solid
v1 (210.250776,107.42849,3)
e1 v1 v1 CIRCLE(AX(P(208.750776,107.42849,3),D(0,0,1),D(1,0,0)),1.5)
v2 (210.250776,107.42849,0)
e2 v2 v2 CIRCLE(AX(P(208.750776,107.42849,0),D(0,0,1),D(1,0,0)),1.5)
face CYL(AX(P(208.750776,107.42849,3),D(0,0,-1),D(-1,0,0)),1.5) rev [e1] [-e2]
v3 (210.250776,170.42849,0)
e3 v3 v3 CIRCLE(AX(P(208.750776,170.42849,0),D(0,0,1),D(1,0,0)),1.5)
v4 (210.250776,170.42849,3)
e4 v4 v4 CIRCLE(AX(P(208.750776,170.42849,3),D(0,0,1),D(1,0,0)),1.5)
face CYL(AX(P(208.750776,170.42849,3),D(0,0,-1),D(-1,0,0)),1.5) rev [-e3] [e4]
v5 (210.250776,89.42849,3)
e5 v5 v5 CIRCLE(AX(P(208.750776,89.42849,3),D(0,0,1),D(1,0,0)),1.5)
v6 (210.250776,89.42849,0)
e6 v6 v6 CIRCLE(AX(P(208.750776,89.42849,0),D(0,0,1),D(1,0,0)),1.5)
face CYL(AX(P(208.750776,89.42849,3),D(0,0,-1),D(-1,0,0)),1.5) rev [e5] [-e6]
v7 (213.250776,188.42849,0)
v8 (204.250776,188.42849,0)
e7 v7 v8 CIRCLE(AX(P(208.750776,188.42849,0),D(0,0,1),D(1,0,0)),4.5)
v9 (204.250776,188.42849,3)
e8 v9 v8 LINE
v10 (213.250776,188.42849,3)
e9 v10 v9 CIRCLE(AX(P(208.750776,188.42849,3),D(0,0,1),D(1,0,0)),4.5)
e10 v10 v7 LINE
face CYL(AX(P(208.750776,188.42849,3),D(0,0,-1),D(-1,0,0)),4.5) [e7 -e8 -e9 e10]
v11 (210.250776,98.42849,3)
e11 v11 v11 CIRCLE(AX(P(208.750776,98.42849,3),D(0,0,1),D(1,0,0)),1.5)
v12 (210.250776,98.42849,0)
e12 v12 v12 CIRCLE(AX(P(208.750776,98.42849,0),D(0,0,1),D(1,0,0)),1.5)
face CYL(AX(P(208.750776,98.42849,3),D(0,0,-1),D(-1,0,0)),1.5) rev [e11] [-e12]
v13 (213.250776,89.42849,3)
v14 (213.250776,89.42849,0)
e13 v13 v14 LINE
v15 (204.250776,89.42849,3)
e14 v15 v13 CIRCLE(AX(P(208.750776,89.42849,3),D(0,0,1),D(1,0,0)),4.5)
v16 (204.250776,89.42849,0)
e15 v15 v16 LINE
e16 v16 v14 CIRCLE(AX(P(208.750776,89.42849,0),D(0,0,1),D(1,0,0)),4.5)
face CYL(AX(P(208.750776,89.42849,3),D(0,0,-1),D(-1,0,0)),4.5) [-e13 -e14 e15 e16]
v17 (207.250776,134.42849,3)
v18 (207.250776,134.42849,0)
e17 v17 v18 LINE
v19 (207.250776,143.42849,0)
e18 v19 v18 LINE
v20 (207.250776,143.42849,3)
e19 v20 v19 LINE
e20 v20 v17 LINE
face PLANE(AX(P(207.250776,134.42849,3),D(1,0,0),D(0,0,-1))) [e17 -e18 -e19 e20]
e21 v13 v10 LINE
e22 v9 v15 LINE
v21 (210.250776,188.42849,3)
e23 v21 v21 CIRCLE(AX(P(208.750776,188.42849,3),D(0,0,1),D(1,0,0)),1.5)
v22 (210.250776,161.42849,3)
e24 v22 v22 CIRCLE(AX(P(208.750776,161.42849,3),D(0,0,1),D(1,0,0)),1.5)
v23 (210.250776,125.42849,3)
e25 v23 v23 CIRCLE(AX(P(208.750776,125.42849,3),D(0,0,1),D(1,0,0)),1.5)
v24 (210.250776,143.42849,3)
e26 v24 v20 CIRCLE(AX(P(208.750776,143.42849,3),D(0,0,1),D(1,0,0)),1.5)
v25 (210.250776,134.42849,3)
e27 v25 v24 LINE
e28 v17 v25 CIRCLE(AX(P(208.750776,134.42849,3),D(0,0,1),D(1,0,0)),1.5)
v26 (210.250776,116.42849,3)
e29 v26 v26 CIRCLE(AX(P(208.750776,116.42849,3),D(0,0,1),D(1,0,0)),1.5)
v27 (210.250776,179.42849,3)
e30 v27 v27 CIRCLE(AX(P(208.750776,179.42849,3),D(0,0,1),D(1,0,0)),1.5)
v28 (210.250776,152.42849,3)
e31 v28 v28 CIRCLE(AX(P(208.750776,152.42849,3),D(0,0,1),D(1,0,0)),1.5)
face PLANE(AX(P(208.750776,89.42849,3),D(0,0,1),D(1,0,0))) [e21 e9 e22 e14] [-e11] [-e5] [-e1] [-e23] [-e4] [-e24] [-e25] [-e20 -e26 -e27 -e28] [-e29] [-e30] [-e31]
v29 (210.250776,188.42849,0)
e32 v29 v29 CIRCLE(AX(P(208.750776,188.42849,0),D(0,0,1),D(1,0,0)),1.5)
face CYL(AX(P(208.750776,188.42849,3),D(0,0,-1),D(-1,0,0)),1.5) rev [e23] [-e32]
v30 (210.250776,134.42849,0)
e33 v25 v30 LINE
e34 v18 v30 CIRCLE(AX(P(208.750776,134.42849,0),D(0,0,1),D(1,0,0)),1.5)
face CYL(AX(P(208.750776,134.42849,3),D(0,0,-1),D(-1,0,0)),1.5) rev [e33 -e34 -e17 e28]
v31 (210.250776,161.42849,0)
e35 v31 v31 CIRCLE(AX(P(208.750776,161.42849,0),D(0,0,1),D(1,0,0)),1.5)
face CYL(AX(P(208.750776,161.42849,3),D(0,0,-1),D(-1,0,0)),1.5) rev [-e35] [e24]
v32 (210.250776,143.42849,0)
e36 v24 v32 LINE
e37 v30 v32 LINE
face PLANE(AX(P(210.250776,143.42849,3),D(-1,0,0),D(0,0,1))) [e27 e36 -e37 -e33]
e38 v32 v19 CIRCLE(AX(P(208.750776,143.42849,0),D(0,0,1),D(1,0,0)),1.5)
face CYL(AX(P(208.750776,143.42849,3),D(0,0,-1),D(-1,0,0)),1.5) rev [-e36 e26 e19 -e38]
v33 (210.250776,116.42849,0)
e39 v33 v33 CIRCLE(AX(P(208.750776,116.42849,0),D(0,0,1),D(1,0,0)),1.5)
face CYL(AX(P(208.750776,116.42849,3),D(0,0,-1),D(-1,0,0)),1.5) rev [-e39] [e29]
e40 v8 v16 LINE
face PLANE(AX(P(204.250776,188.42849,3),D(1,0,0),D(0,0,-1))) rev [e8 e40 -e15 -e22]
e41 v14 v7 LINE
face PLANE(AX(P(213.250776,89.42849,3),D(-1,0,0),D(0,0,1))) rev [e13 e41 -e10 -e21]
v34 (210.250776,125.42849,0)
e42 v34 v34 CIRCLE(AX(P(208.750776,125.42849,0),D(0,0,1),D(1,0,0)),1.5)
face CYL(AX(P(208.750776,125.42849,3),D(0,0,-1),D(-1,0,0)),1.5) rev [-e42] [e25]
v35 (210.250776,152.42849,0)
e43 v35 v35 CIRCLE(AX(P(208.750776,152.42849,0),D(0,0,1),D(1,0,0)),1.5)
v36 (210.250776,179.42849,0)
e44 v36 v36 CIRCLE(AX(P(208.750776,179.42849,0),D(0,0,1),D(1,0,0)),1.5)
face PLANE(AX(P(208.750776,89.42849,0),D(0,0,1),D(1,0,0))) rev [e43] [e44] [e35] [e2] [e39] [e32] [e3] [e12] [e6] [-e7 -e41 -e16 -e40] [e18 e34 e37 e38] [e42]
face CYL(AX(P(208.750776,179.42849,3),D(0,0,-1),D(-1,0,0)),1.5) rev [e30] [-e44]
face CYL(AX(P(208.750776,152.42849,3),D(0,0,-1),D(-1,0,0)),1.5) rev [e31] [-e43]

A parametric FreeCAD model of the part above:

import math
import FreeCAD as App
import Part
import Sketcher
from FreeCAD import Vector
Q = App.Units.Quantity

doc = App.newDocument("Part")
body = doc.addObject("PartDesign::Body", "Body")

sketch1 = body.newObject("Sketcher::SketchObject", "Sketch")
sketch1.AttachmentSupport = (doc.getObject("XY_Plane"), [""])
sketch1.MapMode = "FlatFace"
sketch1.addGeometry(Part.LineSegment(Vector(213.3, 89.4, 0), Vector(213.3, 188.4, 0)), False)
sketch1.addGeometry(Part.ArcOfCircle(Part.Circle(Vector(208.8, 188.4, 0), Vector(0, 0, 1), 4.5), math.radians(0), math.radians(180)), False)
sketch1.addGeometry(Part.LineSegment(Vector(204.3, 188.4, 0), Vector(204.3, 89.4, 0)), False)
sketch1.addGeometry(Part.ArcOfCircle(Part.Circle(Vector(208.8, 89.4, 0), Vector(0, 0, 1), 4.5), math.radians(180), math.radians(360)), False)
sketch1.addGeometry(Part.Circle(Vector(208.8, 89.4, 0), Vector(0, 0, 1), 1.5), False)
sketch1.addGeometry(Part.Circle(Vector(208.8, 98.4, 0), Vector(0, 0, 1), 1.5), False)
sketch1.addGeometry(Part.Circle(Vector(208.8, 107.4, 0), Vector(0, 0, 1), 1.5), False)
sketch1.addGeometry(Part.Circle(Vector(208.8, 116.4, 0), Vector(0, 0, 1), 1.5), False)
sketch1.addGeometry(Part.Circle(Vector(208.8, 125.4, 0), Vector(0, 0, 1), 1.5), False)
sketch1.addGeometry(Part.ArcOfCircle(Part.Circle(Vector(208.8, 134.4, 0), Vector(0, 0, 1), 1.5), math.radians(180), math.radians(360)), False)
sketch1.addGeometry(Part.LineSegment(Vector(207.3, 134.4, 0), Vector(207.3, 143.4, 0)), False)
sketch1.addGeometry(Part.ArcOfCircle(Part.Circle(Vector(208.8, 143.4, 0), Vector(0, 0, 1), 1.5), math.radians(0), math.radians(180)), False)
sketch1.addGeometry(Part.LineSegment(Vector(210.3, 143.4, 0), Vector(210.3, 134.4, 0)), False)
sketch1.addGeometry(Part.Circle(Vector(208.8, 152.4, 0), Vector(0, 0, 1), 1.5), False)
sketch1.addGeometry(Part.Circle(Vector(208.8, 161.4, 0), Vector(0, 0, 1), 1.5), False)
sketch1.addGeometry(Part.Circle(Vector(208.8, 170.4, 0), Vector(0, 0, 1), 1.5), False)
sketch1.addGeometry(Part.Circle(Vector(208.8, 179.4, 0), Vector(0, 0, 1), 1.5), False)
sketch1.addGeometry(Part.Circle(Vector(208.8, 188.4, 0), Vector(0, 0, 1), 1.5), False)
sketch1.addConstraint(Sketcher.Constraint("Tangent", 0, 2, 1, 1))
sketch1.addConstraint(Sketcher.Constraint("Tangent", 1, 2, 2, 1))
sketch1.addConstraint(Sketcher.Constraint("Tangent", 2, 2, 3, 1))
sketch1.addConstraint(Sketcher.Constraint("Tangent", 3, 2, 0, 1))
sketch1.addConstraint(Sketcher.Constraint("Tangent", 9, 1, 10, 1))
sketch1.addConstraint(Sketcher.Constraint("Tangent", 10, 2, 11, 2))
sketch1.addConstraint(Sketcher.Constraint("Tangent", 11, 1, 12, 1))
sketch1.addConstraint(Sketcher.Constraint("Tangent", 12, 2, 9, 2))
sketch1.addConstraint(Sketcher.Constraint("Vertical", 0))
sketch1.addConstraint(Sketcher.Constraint("Vertical", 2))
sketch1.addConstraint(Sketcher.Constraint("Vertical", 10))
sketch1.addConstraint(Sketcher.Constraint("Vertical", 12))
sketch1.addConstraint(Sketcher.Constraint("Coincident", 4, 3, 3, 3))
sketch1.addConstraint(Sketcher.Constraint("Coincident", 17, 3, 1, 3))
sketch1.addConstraint(Sketcher.Constraint("Equal", 4, 5))
sketch1.addConstraint(Sketcher.Constraint("Equal", 5, 6))
sketch1.addConstraint(Sketcher.Constraint("Equal", 6, 7))
sketch1.addConstraint(Sketcher.Constraint("Equal", 7, 8))
sketch1.addConstraint(Sketcher.Constraint("Equal", 8, 9))
sketch1.addConstraint(Sketcher.Constraint("Equal", 11, 13))
sketch1.addConstraint(Sketcher.Constraint("Equal", 13, 14))
sketch1.addConstraint(Sketcher.Constraint("Equal", 14, 15))
sketch1.addConstraint(Sketcher.Constraint("Equal", 15, 16))
sketch1.addConstraint(Sketcher.Constraint("Equal", 16, 17))
sketch1.addConstraint(Sketcher.Constraint("Vertical", 4, 3, 5, 3))
sketch1.addConstraint(Sketcher.Constraint("Vertical", 5, 3, 6, 3))
sketch1.addConstraint(Sketcher.Constraint("Vertical", 6, 3, 7, 3))
sketch1.addConstraint(Sketcher.Constraint("Vertical", 7, 3, 8, 3))
sketch1.addConstraint(Sketcher.Constraint("Vertical", 8, 3, 9, 3))
sketch1.addConstraint(Sketcher.Constraint("Vertical", 11, 3, 13, 3))
sketch1.addConstraint(Sketcher.Constraint("Vertical", 13, 3, 14, 3))
sketch1.addConstraint(Sketcher.Constraint("Vertical", 14, 3, 15, 3))
sketch1.addConstraint(Sketcher.Constraint("Vertical", 15, 3, 16, 3))
sketch1.addConstraint(Sketcher.Constraint("Diameter", 4, Q("3 mm")))
sketch1.addConstraint(Sketcher.Constraint("Radius", 1, Q("4.5 mm")))
sketch1.addConstraint(Sketcher.Constraint("DistanceY", 0, 1, 0, 2, Q("99 mm")))
sketch1.addConstraint(Sketcher.Constraint("DistanceY", 10, 1, 10, 2, Q("9 mm")))
sketch1.addConstraint(Sketcher.Constraint("DistanceY", 3, 3, 5, 3, Q("9 mm")))
sketch1.addConstraint(Sketcher.Constraint("DistanceY", 5, 3, 6, 3, Q("9 mm")))
sketch1.addConstraint(Sketcher.Constraint("DistanceY", 6, 3, 7, 3, Q("9 mm")))
sketch1.addConstraint(Sketcher.Constraint("DistanceY", 7, 3, 8, 3, Q("9 mm")))
sketch1.addConstraint(Sketcher.Constraint("DistanceY", 8, 3, 9, 3, Q("9 mm")))
sketch1.addConstraint(Sketcher.Constraint("DistanceY", 11, 3, 13, 3, Q("9 mm")))
sketch1.addConstraint(Sketcher.Constraint("DistanceY", 13, 3, 14, 3, Q("9 mm")))
sketch1.addConstraint(Sketcher.Constraint("DistanceY", 14, 3, 15, 3, Q("9 mm")))
sketch1.addConstraint(Sketcher.Constraint("DistanceY", 16, 3, 1, 3, Q("9 mm")))
sketch1.addConstraint(Sketcher.Constraint("DistanceY", -1, 1, 1, 3, Q("188.42849 mm")))
sketch1.addConstraint(Sketcher.Constraint("DistanceX", -1, 1, 1, 3, Q("208.750776 mm")))
pad1 = body.newObject("PartDesign::Pad", "Pad")
pad1.Profile = sketch1
pad1.Length = 3

doc.recompute()
